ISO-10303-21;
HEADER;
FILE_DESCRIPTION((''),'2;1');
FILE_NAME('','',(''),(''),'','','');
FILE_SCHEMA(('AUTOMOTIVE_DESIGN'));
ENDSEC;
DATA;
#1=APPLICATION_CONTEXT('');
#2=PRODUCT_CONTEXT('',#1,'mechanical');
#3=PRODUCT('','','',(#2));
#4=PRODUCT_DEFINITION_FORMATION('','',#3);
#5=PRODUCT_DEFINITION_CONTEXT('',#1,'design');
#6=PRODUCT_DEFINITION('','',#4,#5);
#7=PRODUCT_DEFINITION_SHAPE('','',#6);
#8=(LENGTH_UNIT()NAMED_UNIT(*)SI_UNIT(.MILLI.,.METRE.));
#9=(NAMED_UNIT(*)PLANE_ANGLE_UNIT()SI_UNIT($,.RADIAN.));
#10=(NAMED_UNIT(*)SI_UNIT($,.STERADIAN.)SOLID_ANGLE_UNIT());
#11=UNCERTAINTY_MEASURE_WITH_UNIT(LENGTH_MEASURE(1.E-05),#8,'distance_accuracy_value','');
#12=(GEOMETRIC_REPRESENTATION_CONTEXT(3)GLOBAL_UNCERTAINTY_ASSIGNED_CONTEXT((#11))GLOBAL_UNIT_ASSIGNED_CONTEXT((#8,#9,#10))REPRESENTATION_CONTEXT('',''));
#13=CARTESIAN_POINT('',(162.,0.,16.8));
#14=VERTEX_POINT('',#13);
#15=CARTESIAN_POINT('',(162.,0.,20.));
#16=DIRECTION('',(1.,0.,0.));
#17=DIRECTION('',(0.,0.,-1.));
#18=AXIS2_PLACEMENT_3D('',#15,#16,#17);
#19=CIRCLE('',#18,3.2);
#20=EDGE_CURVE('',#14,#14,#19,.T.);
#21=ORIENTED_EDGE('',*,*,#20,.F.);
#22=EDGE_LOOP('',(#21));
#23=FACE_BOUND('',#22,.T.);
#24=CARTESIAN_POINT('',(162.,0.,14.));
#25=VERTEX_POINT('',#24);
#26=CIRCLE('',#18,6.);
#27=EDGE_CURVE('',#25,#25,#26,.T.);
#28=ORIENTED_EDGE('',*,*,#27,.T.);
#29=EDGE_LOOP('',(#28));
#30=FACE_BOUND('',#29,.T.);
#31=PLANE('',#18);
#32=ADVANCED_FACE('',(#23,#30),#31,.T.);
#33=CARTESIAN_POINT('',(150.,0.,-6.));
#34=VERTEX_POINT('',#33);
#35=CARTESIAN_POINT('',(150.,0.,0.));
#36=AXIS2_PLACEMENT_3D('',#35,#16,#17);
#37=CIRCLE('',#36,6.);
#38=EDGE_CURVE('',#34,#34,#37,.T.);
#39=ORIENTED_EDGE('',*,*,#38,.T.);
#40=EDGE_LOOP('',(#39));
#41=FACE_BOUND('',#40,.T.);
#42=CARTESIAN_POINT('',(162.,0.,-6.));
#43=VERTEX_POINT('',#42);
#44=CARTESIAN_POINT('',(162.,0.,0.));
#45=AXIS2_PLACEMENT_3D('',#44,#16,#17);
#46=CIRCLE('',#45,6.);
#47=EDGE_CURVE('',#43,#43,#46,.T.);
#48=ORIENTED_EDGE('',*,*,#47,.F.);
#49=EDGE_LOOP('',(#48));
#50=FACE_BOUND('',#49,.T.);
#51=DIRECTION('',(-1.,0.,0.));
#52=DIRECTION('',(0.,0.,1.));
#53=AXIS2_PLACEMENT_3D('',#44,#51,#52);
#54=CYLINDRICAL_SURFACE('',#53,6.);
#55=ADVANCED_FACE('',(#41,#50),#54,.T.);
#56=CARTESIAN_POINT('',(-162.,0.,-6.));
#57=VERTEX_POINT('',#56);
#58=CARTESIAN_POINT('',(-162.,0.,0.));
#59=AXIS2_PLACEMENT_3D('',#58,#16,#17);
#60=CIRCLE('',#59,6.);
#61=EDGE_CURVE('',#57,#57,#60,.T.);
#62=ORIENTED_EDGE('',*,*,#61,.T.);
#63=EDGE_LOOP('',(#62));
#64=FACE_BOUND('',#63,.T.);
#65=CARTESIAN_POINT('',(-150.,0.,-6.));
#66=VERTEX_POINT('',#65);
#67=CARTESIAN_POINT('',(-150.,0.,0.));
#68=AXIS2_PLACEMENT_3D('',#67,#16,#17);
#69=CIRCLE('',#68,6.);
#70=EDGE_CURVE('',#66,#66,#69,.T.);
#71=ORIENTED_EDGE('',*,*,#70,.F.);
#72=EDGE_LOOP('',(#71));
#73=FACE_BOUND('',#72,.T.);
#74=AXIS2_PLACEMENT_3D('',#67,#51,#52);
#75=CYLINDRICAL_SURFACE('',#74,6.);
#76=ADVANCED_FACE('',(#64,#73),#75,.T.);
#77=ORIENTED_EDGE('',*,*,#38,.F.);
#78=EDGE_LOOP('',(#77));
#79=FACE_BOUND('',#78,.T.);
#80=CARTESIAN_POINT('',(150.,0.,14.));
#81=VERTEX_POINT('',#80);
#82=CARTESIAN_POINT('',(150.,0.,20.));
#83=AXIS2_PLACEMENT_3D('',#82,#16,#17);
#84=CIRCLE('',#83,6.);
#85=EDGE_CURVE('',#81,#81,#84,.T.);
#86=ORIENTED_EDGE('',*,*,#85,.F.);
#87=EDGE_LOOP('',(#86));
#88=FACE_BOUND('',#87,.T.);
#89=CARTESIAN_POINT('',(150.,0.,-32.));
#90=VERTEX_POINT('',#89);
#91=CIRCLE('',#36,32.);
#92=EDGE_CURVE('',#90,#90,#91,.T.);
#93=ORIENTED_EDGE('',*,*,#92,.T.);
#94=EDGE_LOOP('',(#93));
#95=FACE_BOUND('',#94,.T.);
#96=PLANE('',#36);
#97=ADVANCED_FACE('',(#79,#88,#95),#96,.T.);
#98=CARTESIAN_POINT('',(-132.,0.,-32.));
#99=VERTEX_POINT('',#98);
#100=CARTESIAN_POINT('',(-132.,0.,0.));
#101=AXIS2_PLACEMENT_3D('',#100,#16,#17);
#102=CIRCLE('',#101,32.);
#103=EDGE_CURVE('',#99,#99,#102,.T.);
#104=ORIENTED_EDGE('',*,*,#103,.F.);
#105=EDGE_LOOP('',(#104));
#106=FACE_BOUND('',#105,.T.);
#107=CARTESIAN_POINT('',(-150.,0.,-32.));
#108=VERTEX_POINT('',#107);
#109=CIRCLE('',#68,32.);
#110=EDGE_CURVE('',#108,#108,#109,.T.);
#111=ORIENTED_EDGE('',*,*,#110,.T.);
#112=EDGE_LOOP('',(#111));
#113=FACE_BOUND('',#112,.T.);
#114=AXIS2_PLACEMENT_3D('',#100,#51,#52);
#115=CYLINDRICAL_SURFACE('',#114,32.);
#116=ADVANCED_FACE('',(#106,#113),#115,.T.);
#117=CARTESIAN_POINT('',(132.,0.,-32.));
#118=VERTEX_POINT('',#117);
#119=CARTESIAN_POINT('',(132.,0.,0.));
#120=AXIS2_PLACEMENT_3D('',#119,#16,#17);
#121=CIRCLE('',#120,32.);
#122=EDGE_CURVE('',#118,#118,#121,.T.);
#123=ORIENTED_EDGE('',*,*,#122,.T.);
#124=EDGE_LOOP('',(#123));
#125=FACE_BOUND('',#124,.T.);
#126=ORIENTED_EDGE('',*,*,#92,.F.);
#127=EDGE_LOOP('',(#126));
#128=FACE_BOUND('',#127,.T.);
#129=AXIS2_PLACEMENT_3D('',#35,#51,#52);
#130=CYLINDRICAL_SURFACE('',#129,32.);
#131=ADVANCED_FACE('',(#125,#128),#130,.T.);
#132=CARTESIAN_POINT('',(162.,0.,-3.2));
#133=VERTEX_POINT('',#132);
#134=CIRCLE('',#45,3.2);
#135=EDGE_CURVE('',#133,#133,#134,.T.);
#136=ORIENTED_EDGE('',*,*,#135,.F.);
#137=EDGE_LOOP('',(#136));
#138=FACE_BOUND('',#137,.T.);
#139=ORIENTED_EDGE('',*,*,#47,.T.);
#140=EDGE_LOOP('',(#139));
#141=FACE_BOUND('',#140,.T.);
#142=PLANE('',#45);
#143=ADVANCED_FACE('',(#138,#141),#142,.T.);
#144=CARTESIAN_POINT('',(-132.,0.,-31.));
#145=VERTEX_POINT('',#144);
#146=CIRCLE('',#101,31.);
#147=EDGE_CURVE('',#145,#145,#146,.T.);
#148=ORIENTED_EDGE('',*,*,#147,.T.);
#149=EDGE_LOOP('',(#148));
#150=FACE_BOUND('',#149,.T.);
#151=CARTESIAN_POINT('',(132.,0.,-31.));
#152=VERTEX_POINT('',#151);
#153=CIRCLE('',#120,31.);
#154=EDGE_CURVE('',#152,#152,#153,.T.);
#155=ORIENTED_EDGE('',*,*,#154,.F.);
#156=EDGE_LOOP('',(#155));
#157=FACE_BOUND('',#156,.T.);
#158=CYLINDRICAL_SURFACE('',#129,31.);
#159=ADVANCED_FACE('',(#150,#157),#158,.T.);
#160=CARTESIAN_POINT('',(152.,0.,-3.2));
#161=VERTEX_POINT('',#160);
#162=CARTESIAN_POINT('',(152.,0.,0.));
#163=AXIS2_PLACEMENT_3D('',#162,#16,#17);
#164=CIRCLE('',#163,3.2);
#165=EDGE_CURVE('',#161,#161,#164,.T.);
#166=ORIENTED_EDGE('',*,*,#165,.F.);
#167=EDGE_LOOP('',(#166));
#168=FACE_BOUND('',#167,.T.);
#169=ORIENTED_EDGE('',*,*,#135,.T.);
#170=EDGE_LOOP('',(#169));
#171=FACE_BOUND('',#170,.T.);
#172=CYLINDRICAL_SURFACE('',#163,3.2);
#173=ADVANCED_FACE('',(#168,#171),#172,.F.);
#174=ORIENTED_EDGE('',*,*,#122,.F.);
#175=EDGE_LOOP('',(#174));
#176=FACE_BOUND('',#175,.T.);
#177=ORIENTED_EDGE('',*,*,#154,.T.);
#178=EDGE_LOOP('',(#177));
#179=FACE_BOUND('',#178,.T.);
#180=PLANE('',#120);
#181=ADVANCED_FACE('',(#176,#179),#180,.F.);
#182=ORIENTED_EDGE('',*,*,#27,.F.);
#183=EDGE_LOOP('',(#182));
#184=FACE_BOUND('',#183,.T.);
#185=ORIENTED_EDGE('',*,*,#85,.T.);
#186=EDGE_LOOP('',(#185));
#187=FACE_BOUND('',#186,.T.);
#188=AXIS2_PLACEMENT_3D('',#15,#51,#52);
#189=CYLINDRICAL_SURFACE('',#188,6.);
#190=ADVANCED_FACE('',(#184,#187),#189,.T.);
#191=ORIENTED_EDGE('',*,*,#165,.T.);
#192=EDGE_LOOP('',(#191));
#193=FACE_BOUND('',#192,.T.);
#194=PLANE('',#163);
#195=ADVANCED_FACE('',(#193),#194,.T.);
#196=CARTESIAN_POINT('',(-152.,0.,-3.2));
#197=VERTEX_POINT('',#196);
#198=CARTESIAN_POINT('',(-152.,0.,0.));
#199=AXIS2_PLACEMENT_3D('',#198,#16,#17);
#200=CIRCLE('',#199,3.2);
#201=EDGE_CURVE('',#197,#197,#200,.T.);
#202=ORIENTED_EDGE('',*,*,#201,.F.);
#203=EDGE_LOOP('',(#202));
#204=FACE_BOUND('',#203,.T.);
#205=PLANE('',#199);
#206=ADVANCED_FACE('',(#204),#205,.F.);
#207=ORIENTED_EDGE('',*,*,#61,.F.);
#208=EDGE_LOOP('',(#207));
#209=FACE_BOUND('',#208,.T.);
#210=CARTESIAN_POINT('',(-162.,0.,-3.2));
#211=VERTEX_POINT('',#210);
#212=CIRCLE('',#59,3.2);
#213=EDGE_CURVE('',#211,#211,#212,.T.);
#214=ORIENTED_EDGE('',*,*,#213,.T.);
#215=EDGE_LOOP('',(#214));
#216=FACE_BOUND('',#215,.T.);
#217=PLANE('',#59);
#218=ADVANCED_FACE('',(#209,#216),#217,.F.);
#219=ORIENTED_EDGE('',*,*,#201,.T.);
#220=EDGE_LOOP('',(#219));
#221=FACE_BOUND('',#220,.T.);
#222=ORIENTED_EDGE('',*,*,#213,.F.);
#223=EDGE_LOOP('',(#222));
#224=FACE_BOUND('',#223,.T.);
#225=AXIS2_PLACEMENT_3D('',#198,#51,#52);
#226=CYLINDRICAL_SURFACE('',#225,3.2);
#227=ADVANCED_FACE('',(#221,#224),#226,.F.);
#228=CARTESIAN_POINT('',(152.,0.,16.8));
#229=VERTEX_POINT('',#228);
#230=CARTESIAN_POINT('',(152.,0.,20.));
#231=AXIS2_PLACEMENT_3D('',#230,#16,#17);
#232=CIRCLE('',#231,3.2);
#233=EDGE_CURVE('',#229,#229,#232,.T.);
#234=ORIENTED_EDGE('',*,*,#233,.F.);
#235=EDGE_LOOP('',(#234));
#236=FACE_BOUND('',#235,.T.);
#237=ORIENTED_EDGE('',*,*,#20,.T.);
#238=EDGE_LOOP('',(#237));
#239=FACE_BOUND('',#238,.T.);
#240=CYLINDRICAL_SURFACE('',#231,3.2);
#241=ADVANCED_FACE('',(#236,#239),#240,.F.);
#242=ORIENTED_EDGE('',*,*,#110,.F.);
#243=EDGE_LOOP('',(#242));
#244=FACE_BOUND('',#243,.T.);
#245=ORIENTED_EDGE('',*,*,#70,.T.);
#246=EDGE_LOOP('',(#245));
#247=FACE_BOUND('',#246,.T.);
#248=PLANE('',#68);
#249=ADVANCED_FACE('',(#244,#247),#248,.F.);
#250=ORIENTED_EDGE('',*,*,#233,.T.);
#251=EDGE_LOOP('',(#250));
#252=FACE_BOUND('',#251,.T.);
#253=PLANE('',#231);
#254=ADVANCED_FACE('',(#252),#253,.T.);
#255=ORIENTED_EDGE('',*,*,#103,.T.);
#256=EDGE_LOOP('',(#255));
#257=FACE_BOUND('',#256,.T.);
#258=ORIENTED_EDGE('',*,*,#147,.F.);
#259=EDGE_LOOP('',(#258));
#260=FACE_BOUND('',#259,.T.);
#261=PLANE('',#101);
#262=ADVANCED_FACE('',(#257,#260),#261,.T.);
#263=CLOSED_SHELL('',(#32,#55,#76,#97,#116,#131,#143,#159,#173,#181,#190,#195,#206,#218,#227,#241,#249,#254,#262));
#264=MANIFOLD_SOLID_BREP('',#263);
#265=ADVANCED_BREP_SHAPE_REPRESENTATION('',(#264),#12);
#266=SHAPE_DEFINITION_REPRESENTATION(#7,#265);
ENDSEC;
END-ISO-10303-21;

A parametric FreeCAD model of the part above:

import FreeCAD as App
import Part
import Sketcher

V = App.Vector

doc = App.newDocument("Part")
body = doc.addObject("PartDesign::Body", "Body")

# Sketch on YZ plane
sketch1 = body.newObject("Sketcher::SketchObject", "Sketch")
sketch1.AttachmentSupport = (doc.getObject("YZ_Plane"), [""])
sketch1.MapMode = "FlatFace"
sketch1.AttachmentOffset = App.Placement(V(0, 0, -150), App.Rotation())
sketch1.addGeometry(Part.Circle(V(0, 0, 0), V(0, 0, 1), 31), False)
sketch1.addConstraint(Sketcher.Constraint("Coincident", 0, 3, -1, 1))
sketch1.addConstraint(Sketcher.Constraint("Diameter", 0, 62.0))
pad1 = body.newObject("PartDesign::Pad", "Pad")
pad1.Profile = sketch1
pad1.Length = 300

# Sketch on YZ plane
sketch2 = body.newObject("Sketcher::SketchObject", "Sketch001")
sketch2.AttachmentSupport = (doc.getObject("YZ_Plane"), [""])
sketch2.MapMode = "FlatFace"
sketch2.AttachmentOffset = App.Placement(V(0, 0, -150), App.Rotation())
sketch2.addGeometry(Part.Circle(V(0, 0, 0), V(0, 0, 1), 32), False)
sketch2.addConstraint(Sketcher.Constraint("Coincident", 0, 3, -1, 1))
sketch2.addConstraint(Sketcher.Constraint("Diameter", 0, 64.0))
pad2 = body.newObject("PartDesign::Pad", "Pad001")
pad2.Profile = sketch2
pad2.Length = 18

# Sketch on YZ plane
sketch3 = body.newObject("Sketcher::SketchObject", "Sketch002")
sketch3.AttachmentSupport = (doc.getObject("YZ_Plane"), [""])
sketch3.MapMode = "FlatFace"
sketch3.AttachmentOffset = App.Placement(V(0, 0, 132), App.Rotation())
sketch3.addGeometry(Part.Circle(V(0, 0, 0), V(0, 0, 1), 32), False)
sketch3.addConstraint(Sketcher.Constraint("Coincident", 0, 3, -1, 1))
sketch3.addConstraint(Sketcher.Constraint("Diameter", 0, 64.0))
pad3 = body.newObject("PartDesign::Pad", "Pad002")
pad3.Profile = sketch3
pad3.Length = 18

# Sketch on YZ plane
sketch4 = body.newObject("Sketcher::SketchObject", "Sketch003")
sketch4.AttachmentSupport = (doc.getObject("YZ_Plane"), [""])
sketch4.MapMode = "FlatFace"
sketch4.AttachmentOffset = App.Placement(V(0, 0, -162), App.Rotation())
sketch4.addGeometry(Part.Circle(V(0, 0, 0), V(0, 0, 1), 6), False)
sketch4.addConstraint(Sketcher.Constraint("Coincident", 0, 3, -1, 1))
sketch4.addConstraint(Sketcher.Constraint("Diameter", 0, 12.0))
pad4 = body.newObject("PartDesign::Pad", "Pad003")
pad4.Profile = sketch4
pad4.Length = 12

# Sketch on YZ plane
sketch5 = body.newObject("Sketcher::SketchObject", "Sketch004")
sketch5.AttachmentSupport = (doc.getObject("YZ_Plane"), [""])
sketch5.MapMode = "FlatFace"
sketch5.AttachmentOffset = App.Placement(V(0, 0, -162), App.Rotation())
sketch5.addGeometry(Part.Circle(V(0, 0, 0), V(0, 0, 1), 3.2), False)
sketch5.addConstraint(Sketcher.Constraint("Coincident", 0, 3, -1, 1))
sketch5.addConstraint(Sketcher.Constraint("Diameter", 0, 6.4))
pocket1 = body.newObject("PartDesign::Pocket", "Pocket")
pocket1.Profile = sketch5
pocket1.Length = 10
pocket1.Reversed = True

# Sketch on YZ plane
sketch6 = body.newObject("Sketcher::SketchObject", "Sketch005")
sketch6.AttachmentSupport = (doc.getObject("YZ_Plane"), [""])
sketch6.MapMode = "FlatFace"
sketch6.AttachmentOffset = App.Placement(V(0, 0, 150), App.Rotation())
sketch6.addGeometry(Part.Circle(V(0, 0, 0), V(0, 0, 1), 6), False)
sketch6.addConstraint(Sketcher.Constraint("Coincident", 0, 3, -1, 1))
sketch6.addConstraint(Sketcher.Constraint("Diameter", 0, 12.0))
pad5 = body.newObject("PartDesign::Pad", "Pad004")
pad5.Profile = sketch6
pad5.Length = 12

# Sketch on YZ plane
sketch7 = body.newObject("Sketcher::SketchObject", "Sketch006")
sketch7.AttachmentSupport = (doc.getObject("YZ_Plane"), [""])
sketch7.MapMode = "FlatFace"
sketch7.AttachmentOffset = App.Placement(V(0, 0, 152), App.Rotation())
sketch7.addGeometry(Part.Circle(V(0, 0, 0), V(0, 0, 1), 3.2), False)
sketch7.addConstraint(Sketcher.Constraint("Coincident", 0, 3, -1, 1))
sketch7.addConstraint(Sketcher.Constraint("Diameter", 0, 6.4))
pocket2 = body.newObject("PartDesign::Pocket", "Pocket001")
pocket2.Profile = sketch7
pocket2.Length = 10
pocket2.Reversed = True

# Sketch on YZ plane
sketch8 = body.newObject("Sketcher::SketchObject", "Sketch007")
sketch8.AttachmentSupport = (doc.getObject("YZ_Plane"), [""])
sketch8.MapMode = "FlatFace"
sketch8.AttachmentOffset = App.Placement(V(0, 0, 150), App.Rotation())
sketch8.addGeometry(Part.Circle(V(0, 20, 0), V(0, 0, 1), 6), False)
sketch8.addConstraint(Sketcher.Constraint("PointOnObject", 0, 3, -2))
sketch8.addConstraint(Sketcher.Constraint("Diameter", 0, 12.0))
sketch8.addConstraint(Sketcher.Constraint("DistanceY", -1, 1, 0, 3, 20.0))
pad6 = body.newObject("PartDesign::Pad", "Pad005")
pad6.Profile = sketch8
pad6.Length = 12

# Sketch on YZ plane
sketch9 = body.newObject("Sketcher::SketchObject", "Sketch008")
sketch9.AttachmentSupport = (doc.getObject("YZ_Plane"), [""])
sketch9.MapMode = "FlatFace"
sketch9.AttachmentOffset = App.Placement(V(0, 0, 162), App.Rotation())
sketch9.addGeometry(Part.Circle(V(0, 20, 0), V(0, 0, 1), 3.2), False)
sketch9.addConstraint(Sketcher.Constraint("PointOnObject", 0, 3, -2))
sketch9.addConstraint(Sketcher.Constraint("Diameter", 0, 6.4))
sketch9.addConstraint(Sketcher.Constraint("DistanceY", -1, 1, 0, 3, 20.0))
pocket3 = body.newObject("PartDesign::Pocket", "Pocket002")
pocket3.Profile = sketch9
pocket3.Length = 10

doc.recompute()
